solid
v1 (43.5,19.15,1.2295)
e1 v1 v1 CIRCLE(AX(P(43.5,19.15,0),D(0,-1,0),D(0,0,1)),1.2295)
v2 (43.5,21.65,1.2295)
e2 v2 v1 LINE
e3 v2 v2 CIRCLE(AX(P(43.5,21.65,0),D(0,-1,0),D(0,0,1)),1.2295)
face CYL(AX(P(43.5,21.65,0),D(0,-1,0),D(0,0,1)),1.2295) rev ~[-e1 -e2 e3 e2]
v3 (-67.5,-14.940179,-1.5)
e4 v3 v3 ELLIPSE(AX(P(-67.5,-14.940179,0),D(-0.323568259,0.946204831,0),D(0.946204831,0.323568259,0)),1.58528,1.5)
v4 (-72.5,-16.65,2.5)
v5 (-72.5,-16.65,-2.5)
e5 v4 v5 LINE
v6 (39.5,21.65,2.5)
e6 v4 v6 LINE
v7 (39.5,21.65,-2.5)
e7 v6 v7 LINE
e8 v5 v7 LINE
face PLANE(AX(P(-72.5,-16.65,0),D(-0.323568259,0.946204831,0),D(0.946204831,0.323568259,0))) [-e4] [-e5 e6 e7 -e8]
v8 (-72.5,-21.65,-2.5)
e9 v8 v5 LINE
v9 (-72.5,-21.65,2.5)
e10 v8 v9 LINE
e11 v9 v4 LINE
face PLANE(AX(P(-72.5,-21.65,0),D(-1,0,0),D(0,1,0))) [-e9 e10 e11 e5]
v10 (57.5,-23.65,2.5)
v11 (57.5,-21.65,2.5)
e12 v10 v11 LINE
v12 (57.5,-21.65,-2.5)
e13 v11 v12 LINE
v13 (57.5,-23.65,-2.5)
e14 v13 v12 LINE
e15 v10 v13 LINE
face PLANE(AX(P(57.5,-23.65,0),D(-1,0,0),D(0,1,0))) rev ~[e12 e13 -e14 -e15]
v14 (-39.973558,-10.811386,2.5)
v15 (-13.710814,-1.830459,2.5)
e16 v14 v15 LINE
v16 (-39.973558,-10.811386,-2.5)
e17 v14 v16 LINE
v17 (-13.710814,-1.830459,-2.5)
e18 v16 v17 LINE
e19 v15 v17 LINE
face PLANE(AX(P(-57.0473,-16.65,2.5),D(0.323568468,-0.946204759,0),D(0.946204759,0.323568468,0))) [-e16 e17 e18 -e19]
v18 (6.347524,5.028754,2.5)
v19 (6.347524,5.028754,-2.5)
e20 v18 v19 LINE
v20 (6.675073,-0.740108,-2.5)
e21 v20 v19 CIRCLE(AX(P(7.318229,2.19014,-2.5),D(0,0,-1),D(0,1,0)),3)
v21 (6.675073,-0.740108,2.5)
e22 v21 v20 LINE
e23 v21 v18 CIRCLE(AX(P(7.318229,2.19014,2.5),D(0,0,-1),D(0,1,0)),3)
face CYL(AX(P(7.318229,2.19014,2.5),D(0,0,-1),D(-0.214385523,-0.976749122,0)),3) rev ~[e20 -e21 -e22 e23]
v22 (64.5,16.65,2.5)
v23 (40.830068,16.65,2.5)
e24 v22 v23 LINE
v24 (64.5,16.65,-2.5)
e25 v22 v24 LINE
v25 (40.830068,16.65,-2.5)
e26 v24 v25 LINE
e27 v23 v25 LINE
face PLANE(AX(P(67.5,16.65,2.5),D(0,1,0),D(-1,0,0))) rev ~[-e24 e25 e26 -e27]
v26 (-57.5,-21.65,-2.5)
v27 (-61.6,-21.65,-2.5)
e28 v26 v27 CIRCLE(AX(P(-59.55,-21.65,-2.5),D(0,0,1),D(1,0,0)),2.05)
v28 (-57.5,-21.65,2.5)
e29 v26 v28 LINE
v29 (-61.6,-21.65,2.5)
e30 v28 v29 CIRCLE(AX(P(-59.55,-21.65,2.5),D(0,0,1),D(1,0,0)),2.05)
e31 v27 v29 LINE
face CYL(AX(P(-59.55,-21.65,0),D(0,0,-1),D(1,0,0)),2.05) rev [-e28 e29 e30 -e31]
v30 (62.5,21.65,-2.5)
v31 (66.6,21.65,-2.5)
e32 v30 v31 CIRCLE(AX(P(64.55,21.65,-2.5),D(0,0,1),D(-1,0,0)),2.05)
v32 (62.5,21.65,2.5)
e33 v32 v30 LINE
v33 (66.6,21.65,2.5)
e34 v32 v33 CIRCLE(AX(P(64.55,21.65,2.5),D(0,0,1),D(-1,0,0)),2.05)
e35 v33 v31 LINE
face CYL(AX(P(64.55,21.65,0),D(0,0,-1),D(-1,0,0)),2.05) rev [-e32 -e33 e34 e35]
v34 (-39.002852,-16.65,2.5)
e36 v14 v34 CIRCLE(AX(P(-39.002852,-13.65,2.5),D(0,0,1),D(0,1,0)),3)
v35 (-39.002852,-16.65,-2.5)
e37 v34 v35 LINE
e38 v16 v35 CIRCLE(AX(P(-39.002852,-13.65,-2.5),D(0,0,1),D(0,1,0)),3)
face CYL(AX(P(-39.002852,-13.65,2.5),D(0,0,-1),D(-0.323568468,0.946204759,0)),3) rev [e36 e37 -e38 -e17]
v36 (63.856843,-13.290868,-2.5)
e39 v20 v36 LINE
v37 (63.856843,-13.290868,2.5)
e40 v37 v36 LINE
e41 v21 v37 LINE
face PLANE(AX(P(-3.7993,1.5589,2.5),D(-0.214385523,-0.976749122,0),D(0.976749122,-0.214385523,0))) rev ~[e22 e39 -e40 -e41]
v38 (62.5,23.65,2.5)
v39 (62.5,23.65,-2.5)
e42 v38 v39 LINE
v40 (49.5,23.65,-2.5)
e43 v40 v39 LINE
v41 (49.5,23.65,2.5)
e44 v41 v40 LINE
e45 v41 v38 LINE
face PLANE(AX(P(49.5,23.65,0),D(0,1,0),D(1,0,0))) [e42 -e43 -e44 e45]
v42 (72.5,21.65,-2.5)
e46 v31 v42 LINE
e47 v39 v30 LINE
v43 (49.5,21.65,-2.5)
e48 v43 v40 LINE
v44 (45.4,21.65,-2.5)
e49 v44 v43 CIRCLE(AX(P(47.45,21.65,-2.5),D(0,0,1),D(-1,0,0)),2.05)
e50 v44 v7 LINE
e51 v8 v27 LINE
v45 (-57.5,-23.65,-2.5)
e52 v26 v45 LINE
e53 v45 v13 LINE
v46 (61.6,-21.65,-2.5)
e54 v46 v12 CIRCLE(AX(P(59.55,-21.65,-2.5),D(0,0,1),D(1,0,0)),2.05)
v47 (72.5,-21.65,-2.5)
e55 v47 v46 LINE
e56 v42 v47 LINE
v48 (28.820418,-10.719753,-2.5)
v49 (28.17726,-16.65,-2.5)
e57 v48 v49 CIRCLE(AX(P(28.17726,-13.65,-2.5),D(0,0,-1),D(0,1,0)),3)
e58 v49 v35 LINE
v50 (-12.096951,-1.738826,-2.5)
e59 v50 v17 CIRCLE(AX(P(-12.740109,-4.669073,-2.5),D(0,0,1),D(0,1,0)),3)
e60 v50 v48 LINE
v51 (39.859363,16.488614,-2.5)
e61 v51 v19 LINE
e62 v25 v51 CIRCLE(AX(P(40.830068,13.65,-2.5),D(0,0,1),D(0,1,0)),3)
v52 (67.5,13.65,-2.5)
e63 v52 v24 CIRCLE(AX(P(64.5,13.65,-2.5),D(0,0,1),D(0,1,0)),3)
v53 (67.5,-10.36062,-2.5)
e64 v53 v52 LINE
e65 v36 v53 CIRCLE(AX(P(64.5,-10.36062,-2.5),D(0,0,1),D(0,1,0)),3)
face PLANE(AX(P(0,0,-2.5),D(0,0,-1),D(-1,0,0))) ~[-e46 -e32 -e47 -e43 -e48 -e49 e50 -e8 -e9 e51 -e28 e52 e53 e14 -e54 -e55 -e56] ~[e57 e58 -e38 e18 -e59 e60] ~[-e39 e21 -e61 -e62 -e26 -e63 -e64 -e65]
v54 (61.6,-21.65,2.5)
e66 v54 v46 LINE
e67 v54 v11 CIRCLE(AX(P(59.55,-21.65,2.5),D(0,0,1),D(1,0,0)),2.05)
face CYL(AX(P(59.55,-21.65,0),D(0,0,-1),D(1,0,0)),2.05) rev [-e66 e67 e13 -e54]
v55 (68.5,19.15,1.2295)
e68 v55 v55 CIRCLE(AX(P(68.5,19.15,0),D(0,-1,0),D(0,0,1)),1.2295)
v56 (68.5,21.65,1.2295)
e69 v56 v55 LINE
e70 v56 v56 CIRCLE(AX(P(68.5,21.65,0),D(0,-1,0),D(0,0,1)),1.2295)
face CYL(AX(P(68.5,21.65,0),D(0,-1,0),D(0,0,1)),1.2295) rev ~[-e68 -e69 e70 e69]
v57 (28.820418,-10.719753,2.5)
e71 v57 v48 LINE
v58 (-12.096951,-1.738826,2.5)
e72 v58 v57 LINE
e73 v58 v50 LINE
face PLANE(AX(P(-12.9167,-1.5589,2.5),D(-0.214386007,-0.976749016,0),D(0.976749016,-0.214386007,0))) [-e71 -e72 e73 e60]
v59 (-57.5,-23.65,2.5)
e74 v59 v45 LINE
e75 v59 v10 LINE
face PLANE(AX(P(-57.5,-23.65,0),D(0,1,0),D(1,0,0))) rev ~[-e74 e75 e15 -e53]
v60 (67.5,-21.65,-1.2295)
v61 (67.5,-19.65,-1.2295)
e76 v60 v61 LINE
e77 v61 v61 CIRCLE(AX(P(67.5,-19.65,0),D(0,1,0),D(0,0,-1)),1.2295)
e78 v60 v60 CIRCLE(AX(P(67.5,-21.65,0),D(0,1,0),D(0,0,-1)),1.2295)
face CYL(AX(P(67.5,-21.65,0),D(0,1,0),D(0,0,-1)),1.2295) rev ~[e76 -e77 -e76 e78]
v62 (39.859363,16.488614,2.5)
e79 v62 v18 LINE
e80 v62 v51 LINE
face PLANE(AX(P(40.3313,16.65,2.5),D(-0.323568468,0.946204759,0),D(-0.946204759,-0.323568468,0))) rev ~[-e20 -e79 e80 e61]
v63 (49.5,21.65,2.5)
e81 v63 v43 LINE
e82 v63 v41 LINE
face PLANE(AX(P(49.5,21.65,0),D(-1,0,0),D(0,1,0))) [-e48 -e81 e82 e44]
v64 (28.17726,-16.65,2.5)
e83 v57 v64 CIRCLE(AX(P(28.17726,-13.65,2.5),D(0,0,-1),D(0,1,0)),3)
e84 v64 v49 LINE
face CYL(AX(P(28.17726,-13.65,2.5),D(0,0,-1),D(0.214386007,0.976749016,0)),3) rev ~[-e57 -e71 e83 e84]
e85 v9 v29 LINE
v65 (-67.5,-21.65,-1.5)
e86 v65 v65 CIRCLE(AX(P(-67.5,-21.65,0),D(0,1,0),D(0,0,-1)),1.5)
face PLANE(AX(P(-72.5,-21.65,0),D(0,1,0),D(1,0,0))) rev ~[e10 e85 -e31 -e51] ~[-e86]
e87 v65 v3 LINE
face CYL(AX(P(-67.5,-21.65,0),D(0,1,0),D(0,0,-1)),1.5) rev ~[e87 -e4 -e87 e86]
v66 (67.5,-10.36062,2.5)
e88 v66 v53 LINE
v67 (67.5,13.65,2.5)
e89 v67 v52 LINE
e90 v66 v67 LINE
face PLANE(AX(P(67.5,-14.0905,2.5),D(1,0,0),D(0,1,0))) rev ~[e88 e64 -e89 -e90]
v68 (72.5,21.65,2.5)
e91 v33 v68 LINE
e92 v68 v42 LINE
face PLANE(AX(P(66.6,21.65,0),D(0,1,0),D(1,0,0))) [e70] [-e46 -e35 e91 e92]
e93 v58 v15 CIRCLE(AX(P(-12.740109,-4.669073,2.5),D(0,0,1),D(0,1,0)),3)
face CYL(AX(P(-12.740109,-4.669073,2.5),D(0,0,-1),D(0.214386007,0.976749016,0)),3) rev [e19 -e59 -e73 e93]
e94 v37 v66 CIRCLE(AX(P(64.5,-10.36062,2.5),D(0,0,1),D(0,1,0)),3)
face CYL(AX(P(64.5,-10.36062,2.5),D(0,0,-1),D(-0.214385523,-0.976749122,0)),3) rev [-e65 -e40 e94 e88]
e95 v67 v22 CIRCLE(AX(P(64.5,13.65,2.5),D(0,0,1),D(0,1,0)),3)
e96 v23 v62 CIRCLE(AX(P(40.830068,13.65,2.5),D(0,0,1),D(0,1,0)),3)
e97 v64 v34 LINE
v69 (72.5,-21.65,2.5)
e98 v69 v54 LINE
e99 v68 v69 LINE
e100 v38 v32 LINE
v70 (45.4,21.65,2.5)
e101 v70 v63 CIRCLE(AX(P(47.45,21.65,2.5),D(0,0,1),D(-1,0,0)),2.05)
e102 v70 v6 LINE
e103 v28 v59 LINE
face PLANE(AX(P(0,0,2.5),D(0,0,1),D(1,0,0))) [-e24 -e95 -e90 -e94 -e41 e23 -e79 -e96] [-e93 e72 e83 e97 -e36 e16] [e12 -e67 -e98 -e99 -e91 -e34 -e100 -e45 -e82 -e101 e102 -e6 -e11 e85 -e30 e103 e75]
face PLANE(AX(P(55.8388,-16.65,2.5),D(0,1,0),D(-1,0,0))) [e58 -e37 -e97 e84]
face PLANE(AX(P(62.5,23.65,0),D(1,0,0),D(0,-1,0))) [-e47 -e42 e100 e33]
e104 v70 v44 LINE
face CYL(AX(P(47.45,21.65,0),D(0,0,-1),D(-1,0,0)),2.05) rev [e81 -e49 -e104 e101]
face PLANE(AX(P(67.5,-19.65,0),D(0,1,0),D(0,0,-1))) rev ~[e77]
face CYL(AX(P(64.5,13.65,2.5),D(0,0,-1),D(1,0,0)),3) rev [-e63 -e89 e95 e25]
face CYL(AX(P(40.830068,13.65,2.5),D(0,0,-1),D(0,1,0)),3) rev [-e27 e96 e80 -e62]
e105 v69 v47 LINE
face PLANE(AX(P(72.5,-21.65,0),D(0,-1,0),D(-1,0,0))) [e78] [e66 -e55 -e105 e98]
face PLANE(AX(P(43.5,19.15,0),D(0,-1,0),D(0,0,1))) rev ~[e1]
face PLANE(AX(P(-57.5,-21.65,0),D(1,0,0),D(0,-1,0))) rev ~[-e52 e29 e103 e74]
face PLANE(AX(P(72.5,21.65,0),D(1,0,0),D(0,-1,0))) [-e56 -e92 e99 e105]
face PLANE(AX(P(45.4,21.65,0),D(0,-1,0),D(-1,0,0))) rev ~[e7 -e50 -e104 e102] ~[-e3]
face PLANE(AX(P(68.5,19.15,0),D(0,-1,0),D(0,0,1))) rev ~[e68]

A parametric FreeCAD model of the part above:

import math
import FreeCAD as App
import Part
import Sketcher

V = App.Vector
Q = App.Units.Quantity


def edges_at(feature, points):
    """Names of the edges that pass closest to the given points."""
    edges = feature.Shape.Edges
    near = lambda p: min(range(len(edges)), key=lambda i: edges[i].distToShape(Part.Vertex(*p))[0])
    return sorted({f"Edge{near(p) + 1}" for p in points})


def add_polygon(sketch, points):
    """Adds a closed chain of lines whose ends are joined by coincident constraints."""
    first, n = sketch.GeometryCount, len(points)
    for a, b in zip(points, points[1:] + points[:1]):
        sketch.addGeometry(Part.LineSegment(App.Vector(*a, 0), App.Vector(*b, 0)), False)
    for i in range(n):
        sketch.addConstraint(Sketcher.Constraint("Coincident", first + i, 2, first + (i + 1) % n, 1))

doc = App.newDocument("Part")
body = doc.addObject("PartDesign::Body", "Body")

sketch1 = body.newObject("Sketcher::SketchObject", "Sketch")
sketch1.AttachmentSupport = (doc.getObject("XY_Plane"), [""])
sketch1.MapMode = "FlatFace"
sketch1.addGeometry([
    Part.LineSegment(V(-72.5, -16.6, 0), V(-72.5, -21.6, 0)),
    Part.LineSegment(V(-72.5, -21.6, 0), V(-61.6, -21.6, 0)),
    Part.ArcOfCircle(Part.Circle(V(-59.5, -21.6, 0), V(0, 0, 1), 2), math.radians(0), math.radians(180)),
    Part.LineSegment(V(-57.5, -21.6, 0), V(-57.5, -23.6, 0)),
    Part.LineSegment(V(-57.5, -23.6, 0), V(57.5, -23.6, 0)),
    Part.LineSegment(V(57.5, -23.6, 0), V(57.5, -21.6, 0)),
    Part.ArcOfCircle(Part.Circle(V(59.5, -21.6, 0), V(0, 0, 1), 2.1), math.radians(0), math.radians(180)),
    Part.LineSegment(V(61.6, -21.6, 0), V(72.5, -21.6, 0)),
    Part.LineSegment(V(72.5, -21.6, 0), V(72.5, 21.6, 0)),
    Part.LineSegment(V(72.5, 21.6, 0), V(66.6, 21.6, 0)),
    Part.ArcOfCircle(Part.Circle(V(64.5, 21.6, 0), V(0, 0, 1), 2), math.radians(180), math.radians(360)),
    Part.LineSegment(V(62.5, 21.6, 0), V(62.5, 23.6, 0)),
    Part.LineSegment(V(62.5, 23.6, 0), V(49.5, 23.6, 0)),
    Part.LineSegment(V(49.5, 23.6, 0), V(49.5, 21.6, 0)),
    Part.ArcOfCircle(Part.Circle(V(47.5, 21.6, 0), V(0, 0, 1), 2.1), math.radians(180), math.radians(360)),
    Part.LineSegment(V(45.4, 21.6, 0), V(39.5, 21.6, 0)),
    Part.LineSegment(V(39.5, 21.6, 0), V(-72.5, -16.6, 0)),
], False)
sketch1.addConstraint([
    Sketcher.Constraint("Coincident", 0, 2, 1, 1),
    Sketcher.Constraint("Coincident", 1, 2, 2, 2),
    Sketcher.Constraint("Tangent", 2, 1, 3, 1),
    Sketcher.Constraint("Coincident", 3, 2, 4, 1),
    Sketcher.Constraint("Coincident", 4, 2, 5, 1),
    Sketcher.Constraint("Tangent", 5, 2, 6, 2),
    Sketcher.Constraint("Coincident", 6, 1, 7, 1),
    Sketcher.Constraint("Coincident", 7, 2, 8, 1),
    Sketcher.Constraint("Coincident", 8, 2, 9, 1),
    Sketcher.Constraint("Coincident", 9, 2, 10, 2),
    Sketcher.Constraint("Tangent", 10, 1, 11, 1),
    Sketcher.Constraint("Coincident", 11, 2, 12, 1),
    Sketcher.Constraint("Coincident", 12, 2, 13, 1),
    Sketcher.Constraint("Tangent", 13, 2, 14, 2),
    Sketcher.Constraint("Coincident", 14, 1, 15, 1),
    Sketcher.Constraint("Coincident", 15, 2, 16, 1),
    Sketcher.Constraint("Coincident", 16, 2, 0, 1),
    Sketcher.Constraint("Vertical", 0),
    Sketcher.Constraint("Horizontal", 1),
    Sketcher.Constraint("Vertical", 3),
    Sketcher.Constraint("Horizontal", 4),
    Sketcher.Constraint("Vertical", 5),
    Sketcher.Constraint("Horizontal", 7),
    Sketcher.Constraint("Vertical", 8),
    Sketcher.Constraint("Horizontal", 9),
    Sketcher.Constraint("Vertical", 11),
    Sketcher.Constraint("Horizontal", 12),
    Sketcher.Constraint("Vertical", 13),
    Sketcher.Constraint("Horizontal", 15),
    Sketcher.Constraint("Equal", 2, 6),
    Sketcher.Constraint("Equal", 6, 10),
    Sketcher.Constraint("Equal", 10, 14),
    Sketcher.Constraint("Symmetric", 0, 2, 8, 2, -1, 1),
    Sketcher.Constraint("Symmetric", 2, 3, 6, 3, -2),
    Sketcher.Constraint("Horizontal", 10, 3, 14, 3),
    Sketcher.Constraint("Horizontal", 6, 3, 0, 2),
    Sketcher.Constraint("Horizontal", 5, 2, 6, 1),
    Sketcher.Constraint("Horizontal", 14, 3, 8, 2),
    Sketcher.Constraint("Horizontal", 13, 2, 14, 1),
    Sketcher.Constraint("Equal", 9, 15),
    Sketcher.Constraint("Equal", 5, 11),
    Sketcher.Constraint("DistanceY", 0, 2, 0, 1, 5.0),
    Sketcher.Constraint("DistanceY", 3, 2, 3, 1, 2.0),
    Sketcher.Constraint("Radius", 2, 2.05),
    Sketcher.Constraint("DistanceY", 8, 1, 8, 2, 43.3),
    Sketcher.Constraint("DistanceX", 6, 3, 10, 3, 5.0),
    Sketcher.Constraint("DistanceX", 10, 1, 8, 2, 10.0),
    Sketcher.Constraint("DistanceX", 4, 1, 4, 2, 115.0),
    Sketcher.Constraint("DistanceX", 12, 2, 12, 1, 13.0),
])
pad1 = body.newObject("PartDesign::Pad", "Pad")
pad1.Profile = sketch1
pad1.Length = 2.5
doc.recompute()

mirrored = body.newObject("PartDesign::Mirrored", "Mirrored")
mirrored.Originals = [pad1]
mirrored.MirrorPlane = (doc.getObject("XY_Plane"), [""])
body.Tip = mirrored

sketch2 = body.newObject("Sketcher::SketchObject", "Sketch001")
sketch2.AttachmentSupport = (doc.getObject("XZ_Plane"), [""])
sketch2.MapMode = "FlatFace"
sketch2.AttachmentOffset = App.Placement(V(0, 0, 21.65), App.Rotation())
sketch2.addGeometry(Part.Circle(V(67.5, 0, 0), V(0, 0, 1), 1.2), False)
sketch2.addConstraint([
    Sketcher.Constraint("PointOnObject", 0, 3, -1),
    Sketcher.Constraint("Diameter", 0, 2.459),
    Sketcher.Constraint("DistanceX", -1, 1, 0, 3, 67.5),
])
doc.recompute()
hole = body.newObject("PartDesign::Hole", "Hole")
hole.Profile = sketch2
hole.ThreadType = "None"
hole.Diameter = 2.459
hole.DepthType = "Dimension"
hole.Depth = 2
hole.DrillPoint = "Flat"

sketch3 = body.newObject("Sketcher::SketchObject", "Sketch002")
sketch3.AttachmentSupport = (doc.getObject("XZ_Plane"), [""])
sketch3.MapMode = "FlatFace"
sketch3.AttachmentOffset = App.Placement(V(0, 0, -21.65), App.Rotation())
sketch3.addGeometry([
    Part.Circle(V(68.5, 0, 0), V(0, 0, 1), 1.2),
    Part.Circle(V(43.5, 0, 0), V(0, 0, 1), 1.2),
], False)
sketch3.addConstraint([
    Sketcher.Constraint("Equal", 0, 1),
    Sketcher.Constraint("PointOnObject", 0, 3, -1),
    Sketcher.Constraint("PointOnObject", 1, 3, -1),
    Sketcher.Constraint("Diameter", 0, 2.459),
    Sketcher.Constraint("DistanceX", 1, 3, 0, 3, 25.0),
    Sketcher.Constraint("DistanceX", -1, 1, 0, 3, 68.5),
])
doc.recompute()
hole2 = body.newObject("PartDesign::Hole", "Hole001")
hole2.Profile = sketch3
hole2.ThreadType = "None"
hole2.Diameter = 2.459
hole2.DepthType = "Dimension"
hole2.Depth = 2.5
hole2.DrillPoint = "Flat"
hole2.Reversed = True

sketch4 = body.newObject("Sketcher::SketchObject", "Sketch003")
sketch4.AttachmentSupport = (doc.getObject("XY_Plane"), [""])
sketch4.MapMode = "FlatFace"
sketch4.AttachmentOffset = App.Placement(V(0, 0, 2.5), App.Rotation())
add_polygon(sketch4, [(-4, 2), (68, -14), (68, 17), (40, 17)])
add_polygon(sketch4, [(-57, -17), (56, -17), (-13, -2)])
sketch4.addConstraint([
    Sketcher.Constraint("Vertical", 1),
    Sketcher.Constraint("Horizontal", 2),
    Sketcher.Constraint("Horizontal", 4),
    Sketcher.Constraint("Parallel", 0, 5),
    Sketcher.Constraint("Parallel", 3, 6),
    Sketcher.Constraint("Equal", 3, 6),
    Sketcher.Constraint("DistanceX", -1, 1, 0, 2, 67.5),
    Sketcher.Constraint("Angle", 0, Q("-12.3795 deg")),
    Sketcher.Constraint("Angle", 3, Q("-161.1211 deg")),
    Sketcher.Constraint("DistanceY", 4, 2, 1, 2, 33.3),
    Sketcher.Constraint("DistanceX", 4, 1, 4, 2, 112.886),
    Sketcher.Constraint("DistanceY", -1, 1, 1, 2, 16.65),
    Sketcher.Constraint("DistanceX", 2, 2, 2, 1, 27.1687),
    Sketcher.Constraint("DistanceX", 3, 2, 4, 2, 59.638),
])
pocket1 = body.newObject("PartDesign::Pocket", "Pocket")
pocket1.Profile = sketch4
pocket1.Length = 10
doc.recompute()

fillet = body.newObject("PartDesign::Fillet", "Fillet")
fillet.Base = (pocket1, edges_at(pocket1, [
    (-3.799, 1.559, 0),
    (40.331, 16.65, 0),
    (67.5, -14.091, 0),
    (55.839, -16.65, 0),
    (-12.917, -1.559, 0),
    (-57.047, -16.65, 0),
    (67.5, 16.65, 0),
]))
fillet.Radius = 3

sketch5 = body.newObject("Sketcher::SketchObject", "Sketch004")
sketch5.AttachmentSupport = (doc.getObject("XZ_Plane"), [""])
sketch5.MapMode = "FlatFace"
sketch5.AttachmentOffset = App.Placement(V(0, 0, 21.65), App.Rotation())
sketch5.addGeometry(Part.Circle(V(-67.5, 0, 0), V(0, 0, 1), 1.5), False)
sketch5.addConstraint([
    Sketcher.Constraint("PointOnObject", 0, 3, -1),
    Sketcher.Constraint("Diameter", 0, 3.0),
    Sketcher.Constraint("DistanceX", 0, 3, -1, 1, 67.5),
])
doc.recompute()
hole3 = body.newObject("PartDesign::Hole", "Hole002")
hole3.Profile = sketch5
hole3.ThreadType = "None"
hole3.Diameter = 3
hole3.DepthType = "ThroughAll"

doc.recompute()
